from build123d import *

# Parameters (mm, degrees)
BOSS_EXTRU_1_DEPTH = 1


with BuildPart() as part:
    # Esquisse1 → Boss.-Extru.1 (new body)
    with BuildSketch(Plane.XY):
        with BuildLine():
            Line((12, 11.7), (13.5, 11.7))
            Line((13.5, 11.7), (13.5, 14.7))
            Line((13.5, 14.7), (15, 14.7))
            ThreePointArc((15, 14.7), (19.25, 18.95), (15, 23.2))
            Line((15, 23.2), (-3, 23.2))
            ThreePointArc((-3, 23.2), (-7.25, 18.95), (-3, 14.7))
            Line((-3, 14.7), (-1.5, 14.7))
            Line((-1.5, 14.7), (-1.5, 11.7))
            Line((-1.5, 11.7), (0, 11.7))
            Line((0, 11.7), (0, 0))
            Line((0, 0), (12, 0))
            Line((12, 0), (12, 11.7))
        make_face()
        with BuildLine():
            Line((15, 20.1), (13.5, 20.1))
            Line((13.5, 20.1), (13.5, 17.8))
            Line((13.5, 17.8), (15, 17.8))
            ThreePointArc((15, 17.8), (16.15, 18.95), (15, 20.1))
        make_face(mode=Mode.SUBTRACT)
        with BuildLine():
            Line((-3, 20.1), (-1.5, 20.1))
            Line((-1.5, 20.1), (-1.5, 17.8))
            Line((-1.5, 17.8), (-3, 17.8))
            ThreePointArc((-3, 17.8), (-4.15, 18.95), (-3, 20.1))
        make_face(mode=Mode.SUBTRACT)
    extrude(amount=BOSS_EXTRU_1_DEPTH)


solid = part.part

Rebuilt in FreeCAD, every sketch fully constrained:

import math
import FreeCAD as App
import Part
import Sketcher

V = App.Vector

doc = App.newDocument("Part")
body = doc.addObject("PartDesign::Body", "Body")

sketch1 = body.newObject("Sketcher::SketchObject", "Sketch")
sketch1.AttachmentSupport = (doc.getObject("XY_Plane"), [""])
sketch1.MapMode = "FlatFace"
sketch1.addGeometry([
    Part.LineSegment(V(12, 11.7, 0), V(13.5, 11.7, 0)),
    Part.LineSegment(V(13.5, 11.7, 0), V(13.5, 14.7, 0)),
    Part.LineSegment(V(13.5, 14.7, 0), V(15, 14.7, 0)),
    Part.ArcOfCircle(Part.Circle(V(15, 18.95, 0), V(0, 0, 1), 4.25), math.radians(-90), math.radians(90)),
    Part.LineSegment(V(15, 23.2, 0), V(-3, 23.2, 0)),
    Part.ArcOfCircle(Part.Circle(V(-3, 18.95, 0), V(0, 0, 1), 4.25), math.radians(90), math.radians(270)),
    Part.LineSegment(V(-3, 14.7, 0), V(-1.5, 14.7, 0)),
    Part.LineSegment(V(-1.5, 14.7, 0), V(-1.5, 11.7, 0)),
    Part.LineSegment(V(-1.5, 11.7, 0), V(0, 11.7, 0)),
    Part.LineSegment(V(0, 11.7, 0), V(0, 0, 0)),
    Part.LineSegment(V(0, 0, 0), V(12, 0, 0)),
    Part.LineSegment(V(12, 0, 0), V(12, 11.7, 0)),
    Part.ArcOfCircle(Part.Circle(V(-3, 18.95, 0), V(0, 0, 1), 1.15), math.radians(90), math.radians(270)),
    Part.LineSegment(V(-3, 20.1, 0), V(-1.5, 20.1, 0)),
    Part.LineSegment(V(-1.5, 20.1, 0), V(-1.5, 17.8, 0)),
    Part.LineSegment(V(-1.5, 17.8, 0), V(-3, 17.8, 0)),
    Part.LineSegment(V(13.5, 20.1, 0), V(15, 20.1, 0)),
    Part.ArcOfCircle(Part.Circle(V(15, 18.95, 0), V(0, 0, 1), 1.15), math.radians(-90), math.radians(90)),
    Part.LineSegment(V(15, 17.8, 0), V(13.5, 17.8, 0)),
    Part.LineSegment(V(13.5, 17.8, 0), V(13.5, 20.1, 0)),
], False)
sketch1.addConstraint([
    Sketcher.Constraint("Coincident", 0, 2, 1, 1),
    Sketcher.Constraint("Coincident", 1, 2, 2, 1),
    Sketcher.Constraint("Tangent", 2, 2, 3, 1),
    Sketcher.Constraint("Tangent", 3, 2, 4, 1),
    Sketcher.Constraint("Tangent", 4, 2, 5, 1),
    Sketcher.Constraint("Tangent", 5, 2, 6, 1),
    Sketcher.Constraint("Coincident", 6, 2, 7, 1),
    Sketcher.Constraint("Coincident", 7, 2, 8, 1),
    Sketcher.Constraint("Coincident", 8, 2, 9, 1),
    Sketcher.Constraint("Coincident", 9, 2, 10, 1),
    Sketcher.Constraint("Coincident", 10, 2, 11, 1),
    Sketcher.Constraint("Coincident", 11, 2, 0, 1),
    Sketcher.Constraint("Tangent", 12, 1, 13, 1),
    Sketcher.Constraint("Coincident", 13, 2, 14, 1),
    Sketcher.Constraint("Coincident", 14, 2, 15, 1),
    Sketcher.Constraint("Tangent", 15, 2, 12, 2),
    Sketcher.Constraint("Tangent", 16, 2, 17, 2),
    Sketcher.Constraint("Tangent", 17, 1, 18, 1),
    Sketcher.Constraint("Coincident", 18, 2, 19, 1),
    Sketcher.Constraint("Coincident", 19, 2, 16, 1),
    Sketcher.Constraint("Horizontal", 0),
    Sketcher.Constraint("Vertical", 1),
    Sketcher.Constraint("Horizontal", 2),
    Sketcher.Constraint("Horizontal", 4),
    Sketcher.Constraint("Horizontal", 6),
    Sketcher.Constraint("Vertical", 7),
    Sketcher.Constraint("Horizontal", 8),
    Sketcher.Constraint("Vertical", 9),
    Sketcher.Constraint("Horizontal", 10),
    Sketcher.Constraint("Vertical", 11),
    Sketcher.Constraint("Horizontal", 13),
    Sketcher.Constraint("Vertical", 14),
    Sketcher.Constraint("Horizontal", 15),
    Sketcher.Constraint("Horizontal", 16),
    Sketcher.Constraint("Horizontal", 18),
    Sketcher.Constraint("Vertical", 19),
    Sketcher.Constraint("Coincident", 9, 2, -1, 1),
    Sketcher.Constraint("Coincident", 12, 3, 5, 3),
    Sketcher.Constraint("Coincident", 17, 3, 3, 3),
    Sketcher.Constraint("Equal", 3, 5),
    Sketcher.Constraint("Equal", 12, 17),
    Sketcher.Constraint("Horizontal", 0, 2, 7, 2),
    Sketcher.Constraint("Vertical", 7, 2, 13, 2),
    Sketcher.Constraint("Vertical", 1, 2, 18, 2),
    Sketcher.Constraint("Equal", 0, 2),
    Sketcher.Constraint("Equal", 2, 6),
    Sketcher.Constraint("Equal", 6, 8),
    Sketcher.Constraint("DistanceX", 4, 2, 4, 1, 18.0),
    Sketcher.Constraint("DistanceX", 10, 1, 10, 2, 12.0),
    Sketcher.Constraint("DistanceY", 1, 1, 1, 2, 3.0),
    Sketcher.Constraint("Radius", 3, 4.25),
    Sketcher.Constraint("Radius", 12, 1.15),
    Sketcher.Constraint("DistanceY", 9, 2, 9, 1, 11.7),
])
pad1 = body.newObject("PartDesign::Pad", "Pad")
pad1.Profile = sketch1
pad1.Length = 1

doc.recompute()
